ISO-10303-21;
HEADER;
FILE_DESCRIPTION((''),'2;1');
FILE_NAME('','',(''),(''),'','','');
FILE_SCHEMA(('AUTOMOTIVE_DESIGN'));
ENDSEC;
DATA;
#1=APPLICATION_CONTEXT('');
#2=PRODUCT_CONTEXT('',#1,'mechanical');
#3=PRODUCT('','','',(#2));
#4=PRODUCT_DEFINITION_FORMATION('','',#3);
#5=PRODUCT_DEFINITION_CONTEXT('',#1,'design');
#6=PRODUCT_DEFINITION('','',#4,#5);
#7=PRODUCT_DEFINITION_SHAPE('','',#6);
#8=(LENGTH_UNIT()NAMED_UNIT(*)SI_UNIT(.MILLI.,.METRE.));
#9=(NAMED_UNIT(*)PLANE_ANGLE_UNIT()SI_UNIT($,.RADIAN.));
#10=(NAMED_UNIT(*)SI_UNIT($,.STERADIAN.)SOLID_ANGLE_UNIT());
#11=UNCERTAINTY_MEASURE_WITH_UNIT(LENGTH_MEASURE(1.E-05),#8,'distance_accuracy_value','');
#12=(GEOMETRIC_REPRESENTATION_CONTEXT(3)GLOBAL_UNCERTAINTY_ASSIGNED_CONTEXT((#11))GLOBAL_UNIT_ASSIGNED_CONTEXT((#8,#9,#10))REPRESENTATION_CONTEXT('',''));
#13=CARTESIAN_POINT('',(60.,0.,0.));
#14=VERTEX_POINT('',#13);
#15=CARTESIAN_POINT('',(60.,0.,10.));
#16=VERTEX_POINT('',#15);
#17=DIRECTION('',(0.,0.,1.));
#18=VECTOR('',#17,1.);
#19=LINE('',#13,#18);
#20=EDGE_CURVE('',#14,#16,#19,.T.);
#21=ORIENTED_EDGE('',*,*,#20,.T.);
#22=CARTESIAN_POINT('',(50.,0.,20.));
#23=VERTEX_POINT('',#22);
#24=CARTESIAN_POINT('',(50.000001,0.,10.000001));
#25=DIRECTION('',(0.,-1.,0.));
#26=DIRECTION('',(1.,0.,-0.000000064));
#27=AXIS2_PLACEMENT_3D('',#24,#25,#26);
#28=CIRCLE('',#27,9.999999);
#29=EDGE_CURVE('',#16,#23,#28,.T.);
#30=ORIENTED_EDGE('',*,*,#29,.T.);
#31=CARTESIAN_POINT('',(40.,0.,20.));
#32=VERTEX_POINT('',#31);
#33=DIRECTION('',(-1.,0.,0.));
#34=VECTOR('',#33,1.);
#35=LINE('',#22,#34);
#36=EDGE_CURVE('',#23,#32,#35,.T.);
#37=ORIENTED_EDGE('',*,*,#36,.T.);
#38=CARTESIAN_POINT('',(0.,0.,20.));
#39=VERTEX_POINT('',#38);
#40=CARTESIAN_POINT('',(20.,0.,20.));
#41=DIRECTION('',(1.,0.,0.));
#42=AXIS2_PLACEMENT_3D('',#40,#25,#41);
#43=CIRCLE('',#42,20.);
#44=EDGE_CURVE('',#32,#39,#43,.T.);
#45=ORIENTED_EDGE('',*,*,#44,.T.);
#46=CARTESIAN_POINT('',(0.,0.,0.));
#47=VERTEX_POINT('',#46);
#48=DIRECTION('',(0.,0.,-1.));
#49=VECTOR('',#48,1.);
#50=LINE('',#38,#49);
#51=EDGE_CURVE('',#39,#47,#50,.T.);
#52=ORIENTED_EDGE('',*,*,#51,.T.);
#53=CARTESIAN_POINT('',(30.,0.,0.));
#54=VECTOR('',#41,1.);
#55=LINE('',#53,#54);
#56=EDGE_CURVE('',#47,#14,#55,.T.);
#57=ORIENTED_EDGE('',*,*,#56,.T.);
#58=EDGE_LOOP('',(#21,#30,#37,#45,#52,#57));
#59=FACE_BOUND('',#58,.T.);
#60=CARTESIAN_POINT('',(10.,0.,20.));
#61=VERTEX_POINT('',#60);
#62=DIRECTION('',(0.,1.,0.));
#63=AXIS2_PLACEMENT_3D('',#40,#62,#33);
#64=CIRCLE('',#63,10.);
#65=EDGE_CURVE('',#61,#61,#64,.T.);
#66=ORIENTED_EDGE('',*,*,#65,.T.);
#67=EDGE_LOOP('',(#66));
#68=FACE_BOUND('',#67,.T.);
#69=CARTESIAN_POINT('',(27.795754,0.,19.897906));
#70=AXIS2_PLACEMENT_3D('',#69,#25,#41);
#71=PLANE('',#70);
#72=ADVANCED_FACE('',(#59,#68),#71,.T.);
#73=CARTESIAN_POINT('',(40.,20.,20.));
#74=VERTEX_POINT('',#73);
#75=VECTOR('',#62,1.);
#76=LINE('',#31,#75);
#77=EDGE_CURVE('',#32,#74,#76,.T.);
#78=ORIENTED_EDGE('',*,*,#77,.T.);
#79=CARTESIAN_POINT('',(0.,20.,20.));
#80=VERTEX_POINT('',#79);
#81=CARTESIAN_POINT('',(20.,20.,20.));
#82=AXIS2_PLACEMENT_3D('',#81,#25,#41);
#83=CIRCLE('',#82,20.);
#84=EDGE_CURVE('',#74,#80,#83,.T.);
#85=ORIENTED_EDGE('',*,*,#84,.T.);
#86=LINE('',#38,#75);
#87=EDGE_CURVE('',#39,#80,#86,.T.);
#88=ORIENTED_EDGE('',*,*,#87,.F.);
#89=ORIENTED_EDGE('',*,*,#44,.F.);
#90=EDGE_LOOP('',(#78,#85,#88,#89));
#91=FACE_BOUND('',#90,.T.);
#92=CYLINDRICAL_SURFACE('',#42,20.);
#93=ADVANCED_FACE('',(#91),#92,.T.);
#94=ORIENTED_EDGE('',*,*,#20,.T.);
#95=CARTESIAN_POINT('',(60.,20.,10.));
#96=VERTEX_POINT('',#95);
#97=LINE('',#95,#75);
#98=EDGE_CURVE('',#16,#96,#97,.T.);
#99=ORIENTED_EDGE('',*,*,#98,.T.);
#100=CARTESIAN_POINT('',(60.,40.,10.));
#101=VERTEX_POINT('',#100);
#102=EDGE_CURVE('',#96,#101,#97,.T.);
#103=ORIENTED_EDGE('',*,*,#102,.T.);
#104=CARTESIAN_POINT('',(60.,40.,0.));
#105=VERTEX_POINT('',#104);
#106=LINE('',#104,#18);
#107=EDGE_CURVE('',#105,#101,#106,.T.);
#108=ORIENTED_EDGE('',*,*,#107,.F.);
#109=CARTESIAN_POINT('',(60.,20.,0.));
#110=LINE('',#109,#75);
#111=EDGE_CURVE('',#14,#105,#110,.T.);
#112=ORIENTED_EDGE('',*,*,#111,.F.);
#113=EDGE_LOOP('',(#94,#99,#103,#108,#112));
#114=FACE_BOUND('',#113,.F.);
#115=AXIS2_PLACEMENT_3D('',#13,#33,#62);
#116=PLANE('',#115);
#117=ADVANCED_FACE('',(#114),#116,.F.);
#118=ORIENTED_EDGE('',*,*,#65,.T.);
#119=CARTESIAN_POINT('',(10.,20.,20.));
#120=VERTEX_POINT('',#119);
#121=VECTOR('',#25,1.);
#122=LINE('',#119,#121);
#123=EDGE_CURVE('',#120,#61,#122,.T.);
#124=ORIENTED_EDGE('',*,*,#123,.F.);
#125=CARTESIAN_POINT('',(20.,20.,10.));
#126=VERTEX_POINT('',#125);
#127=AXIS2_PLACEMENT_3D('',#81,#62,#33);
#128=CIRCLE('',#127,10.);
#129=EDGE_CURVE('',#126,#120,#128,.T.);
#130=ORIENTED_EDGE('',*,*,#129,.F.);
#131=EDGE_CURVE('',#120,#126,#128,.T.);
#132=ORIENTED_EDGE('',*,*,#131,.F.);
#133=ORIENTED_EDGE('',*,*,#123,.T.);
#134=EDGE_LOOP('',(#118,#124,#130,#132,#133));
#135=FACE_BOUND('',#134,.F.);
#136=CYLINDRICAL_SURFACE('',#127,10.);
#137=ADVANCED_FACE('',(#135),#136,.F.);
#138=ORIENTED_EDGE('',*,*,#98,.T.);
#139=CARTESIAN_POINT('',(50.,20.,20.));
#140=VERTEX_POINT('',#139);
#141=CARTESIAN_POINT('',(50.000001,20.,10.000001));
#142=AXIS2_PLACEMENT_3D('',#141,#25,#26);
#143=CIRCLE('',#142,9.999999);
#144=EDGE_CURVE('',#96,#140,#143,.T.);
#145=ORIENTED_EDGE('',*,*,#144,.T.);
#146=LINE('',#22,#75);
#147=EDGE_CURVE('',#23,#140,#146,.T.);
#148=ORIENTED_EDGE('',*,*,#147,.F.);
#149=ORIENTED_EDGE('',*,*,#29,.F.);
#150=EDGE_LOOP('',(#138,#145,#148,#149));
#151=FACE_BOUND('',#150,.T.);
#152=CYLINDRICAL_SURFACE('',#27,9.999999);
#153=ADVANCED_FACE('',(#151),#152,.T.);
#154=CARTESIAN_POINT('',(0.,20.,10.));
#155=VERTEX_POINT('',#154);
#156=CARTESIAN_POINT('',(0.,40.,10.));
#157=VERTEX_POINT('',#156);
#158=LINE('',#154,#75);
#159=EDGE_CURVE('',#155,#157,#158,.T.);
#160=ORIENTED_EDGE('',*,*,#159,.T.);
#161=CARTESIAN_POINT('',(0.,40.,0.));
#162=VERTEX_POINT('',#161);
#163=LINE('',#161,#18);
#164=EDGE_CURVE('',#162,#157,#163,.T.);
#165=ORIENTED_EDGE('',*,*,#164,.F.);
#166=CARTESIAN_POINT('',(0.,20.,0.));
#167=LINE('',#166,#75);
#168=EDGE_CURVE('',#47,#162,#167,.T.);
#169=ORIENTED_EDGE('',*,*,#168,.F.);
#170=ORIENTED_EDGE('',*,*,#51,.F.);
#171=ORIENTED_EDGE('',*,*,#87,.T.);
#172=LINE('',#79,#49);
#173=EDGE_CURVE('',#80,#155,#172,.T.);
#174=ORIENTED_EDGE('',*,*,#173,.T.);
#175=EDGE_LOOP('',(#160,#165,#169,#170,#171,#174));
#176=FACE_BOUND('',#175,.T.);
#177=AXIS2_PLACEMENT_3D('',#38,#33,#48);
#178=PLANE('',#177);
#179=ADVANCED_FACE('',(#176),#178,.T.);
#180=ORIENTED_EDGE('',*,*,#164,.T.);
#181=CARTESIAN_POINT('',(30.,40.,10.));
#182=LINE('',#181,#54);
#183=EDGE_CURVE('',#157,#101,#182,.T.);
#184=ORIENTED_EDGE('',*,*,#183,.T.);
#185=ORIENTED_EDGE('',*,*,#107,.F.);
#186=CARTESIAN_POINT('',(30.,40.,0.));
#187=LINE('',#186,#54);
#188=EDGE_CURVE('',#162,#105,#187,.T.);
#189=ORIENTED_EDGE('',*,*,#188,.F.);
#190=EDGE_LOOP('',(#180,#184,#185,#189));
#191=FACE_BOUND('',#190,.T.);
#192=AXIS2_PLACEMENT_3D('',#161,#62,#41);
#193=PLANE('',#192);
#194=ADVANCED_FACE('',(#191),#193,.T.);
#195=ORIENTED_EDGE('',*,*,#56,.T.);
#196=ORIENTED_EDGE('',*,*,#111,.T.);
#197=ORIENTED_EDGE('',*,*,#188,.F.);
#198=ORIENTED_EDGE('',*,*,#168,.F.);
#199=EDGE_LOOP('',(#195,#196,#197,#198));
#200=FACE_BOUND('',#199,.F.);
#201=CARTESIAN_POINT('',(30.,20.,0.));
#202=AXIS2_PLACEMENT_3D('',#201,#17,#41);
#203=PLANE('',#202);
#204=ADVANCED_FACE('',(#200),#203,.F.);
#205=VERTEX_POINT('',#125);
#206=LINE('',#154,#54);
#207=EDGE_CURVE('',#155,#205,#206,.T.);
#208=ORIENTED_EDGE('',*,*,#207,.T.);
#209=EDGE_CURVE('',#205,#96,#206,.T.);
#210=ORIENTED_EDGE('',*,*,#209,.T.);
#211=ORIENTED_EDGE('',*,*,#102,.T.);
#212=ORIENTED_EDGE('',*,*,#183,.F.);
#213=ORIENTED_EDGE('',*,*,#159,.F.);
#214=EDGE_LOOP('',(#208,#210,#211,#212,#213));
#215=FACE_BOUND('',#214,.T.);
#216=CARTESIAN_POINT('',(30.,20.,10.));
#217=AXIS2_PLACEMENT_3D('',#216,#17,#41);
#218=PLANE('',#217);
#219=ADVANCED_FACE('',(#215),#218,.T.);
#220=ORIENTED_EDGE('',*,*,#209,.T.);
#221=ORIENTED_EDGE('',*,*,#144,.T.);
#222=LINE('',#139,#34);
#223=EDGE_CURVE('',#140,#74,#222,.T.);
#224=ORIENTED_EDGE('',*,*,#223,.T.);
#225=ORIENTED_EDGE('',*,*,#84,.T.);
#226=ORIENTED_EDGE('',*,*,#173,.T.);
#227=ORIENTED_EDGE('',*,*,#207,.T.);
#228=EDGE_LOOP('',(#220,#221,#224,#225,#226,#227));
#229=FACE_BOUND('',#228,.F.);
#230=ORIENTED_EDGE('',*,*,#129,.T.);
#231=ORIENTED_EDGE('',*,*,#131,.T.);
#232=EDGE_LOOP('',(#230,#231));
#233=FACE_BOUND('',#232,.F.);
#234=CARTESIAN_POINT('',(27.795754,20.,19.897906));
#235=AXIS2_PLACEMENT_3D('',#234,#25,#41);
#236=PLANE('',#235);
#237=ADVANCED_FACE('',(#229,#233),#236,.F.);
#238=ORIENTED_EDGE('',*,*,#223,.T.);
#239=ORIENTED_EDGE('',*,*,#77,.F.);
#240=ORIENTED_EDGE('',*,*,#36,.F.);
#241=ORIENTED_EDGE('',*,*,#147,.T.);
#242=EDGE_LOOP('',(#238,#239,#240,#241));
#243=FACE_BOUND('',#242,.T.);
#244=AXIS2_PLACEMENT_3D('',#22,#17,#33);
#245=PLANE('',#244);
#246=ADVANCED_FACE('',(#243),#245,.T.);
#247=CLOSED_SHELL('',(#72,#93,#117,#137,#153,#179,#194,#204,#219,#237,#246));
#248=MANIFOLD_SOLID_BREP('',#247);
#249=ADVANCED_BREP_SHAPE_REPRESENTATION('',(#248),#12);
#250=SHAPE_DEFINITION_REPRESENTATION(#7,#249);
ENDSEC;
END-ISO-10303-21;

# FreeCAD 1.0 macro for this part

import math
import FreeCAD as App
import Part
import Sketcher

doc = App.newDocument("Part")
body = doc.addObject("PartDesign::Body", "Body")

sketch1 = body.newObject("Sketcher::SketchObject", "Sketch")
sketch1.AttachmentSupport = (doc.getObject("XY_Plane"), [""])
sketch1.MapMode = "FlatFace"
sketch1.addGeometry([
    Part.LineSegment(App.Vector(0, 40, 0), App.Vector(0, 0, 0)),
    Part.LineSegment(App.Vector(0, 0, 0), App.Vector(60, 0, 0)),
    Part.LineSegment(App.Vector(60, 0, 0), App.Vector(60, 40, 0)),
    Part.LineSegment(App.Vector(60, 40, 0), App.Vector(0, 40, 0)),
], False)
sketch1.addConstraint([
    Sketcher.Constraint("Coincident", 0, 2, 1, 1),
    Sketcher.Constraint("Coincident", 1, 2, 2, 1),
    Sketcher.Constraint("Coincident", 2, 2, 3, 1),
    Sketcher.Constraint("Coincident", 3, 2, 0, 1),
    Sketcher.Constraint("Vertical", 0),
    Sketcher.Constraint("Horizontal", 1),
    Sketcher.Constraint("Vertical", 2),
    Sketcher.Constraint("Horizontal", 3),
    Sketcher.Constraint("Coincident", 0, 2, -1, 1),
    Sketcher.Constraint("DistanceX", 1, 1, 1, 2, 60.0),
    Sketcher.Constraint("DistanceY", 0, 2, 0, 1, 40.0),
])
pad1 = body.newObject("PartDesign::Pad", "Pad")
pad1.Profile = sketch1
pad1.Length = 10

sketch2 = body.newObject("Sketcher::SketchObject", "Sketch001")
sketch2.AttachmentSupport = (doc.getObject("XZ_Plane"), [""])
sketch2.MapMode = "FlatFace"
sketch2.addGeometry([
    Part.LineSegment(App.Vector(50, 20, 0), App.Vector(40, 20, 0)),
    Part.ArcOfCircle(Part.Circle(App.Vector(20, 20, 0), App.Vector(0, 0, 1), 20), math.radians(0), math.radians(180)),
    Part.LineSegment(App.Vector(0, 20, 0), App.Vector(0, 10, 0)),
    Part.LineSegment(App.Vector(0, 10, 0), App.Vector(60, 10, 0)),
    Part.ArcOfCircle(Part.Circle(App.Vector(50.000001, 10.000001, 0), App.Vector(0, 0, 1), 9.999999), math.radians(-0.000004), math.radians(90.000004)),
], False)
sketch2.addConstraint([
    Sketcher.Constraint("Coincident", 0, 2, 1, 1),
    Sketcher.Constraint("Tangent", 1, 2, 2, 1),
    Sketcher.Constraint("Coincident", 2, 2, 3, 1),
    Sketcher.Constraint("Coincident", 3, 2, 4, 1),
    Sketcher.Constraint("Tangent", 4, 2, 0, 1),
    Sketcher.Constraint("Horizontal", 0),
    Sketcher.Constraint("Vertical", 2),
    Sketcher.Constraint("Horizontal", 3),
    Sketcher.Constraint("PointOnObject", 1, 2, -2),
    Sketcher.Constraint("Horizontal", 1, 3, 0, 2),
    Sketcher.Constraint("Horizontal", 4, 3, 2, 2),
    Sketcher.Constraint("Equal", 0, 2),
    Sketcher.Constraint("Radius", 1, 20.0),
    Sketcher.Constraint("Radius", 4, 9.999999),
    Sketcher.Constraint("DistanceY", -1, 1, 1, 3, 20.0),
])
pad2 = body.newObject("PartDesign::Pad", "Pad001")
pad2.Profile = sketch2
pad2.Length = 20
pad2.Reversed = True

sketch3 = body.newObject("Sketcher::SketchObject", "Sketch002")
sketch3.AttachmentSupport = (doc.getObject("XZ_Plane"), [""])
sketch3.MapMode = "FlatFace"
sketch3.AttachmentOffset = App.Placement(App.Vector(0, 0, -20), App.Rotation())
sketch3.addGeometry(Part.Circle(App.Vector(20, 20, 0), App.Vector(0, 0, 1), 10), False)
sketch3.addConstraint([
    Sketcher.Constraint("Diameter", 0, 20.0),
    Sketcher.Constraint("DistanceX", -1, 1, 0, 3, 20.0),
    Sketcher.Constraint("DistanceY", -1, 1, 0, 3, 20.0),
])
pocket1 = body.newObject("PartDesign::Pocket", "Pocket")
pocket1.Profile = sketch3
pocket1.Length = 25
pocket1.Reversed = True

doc.recompute()
